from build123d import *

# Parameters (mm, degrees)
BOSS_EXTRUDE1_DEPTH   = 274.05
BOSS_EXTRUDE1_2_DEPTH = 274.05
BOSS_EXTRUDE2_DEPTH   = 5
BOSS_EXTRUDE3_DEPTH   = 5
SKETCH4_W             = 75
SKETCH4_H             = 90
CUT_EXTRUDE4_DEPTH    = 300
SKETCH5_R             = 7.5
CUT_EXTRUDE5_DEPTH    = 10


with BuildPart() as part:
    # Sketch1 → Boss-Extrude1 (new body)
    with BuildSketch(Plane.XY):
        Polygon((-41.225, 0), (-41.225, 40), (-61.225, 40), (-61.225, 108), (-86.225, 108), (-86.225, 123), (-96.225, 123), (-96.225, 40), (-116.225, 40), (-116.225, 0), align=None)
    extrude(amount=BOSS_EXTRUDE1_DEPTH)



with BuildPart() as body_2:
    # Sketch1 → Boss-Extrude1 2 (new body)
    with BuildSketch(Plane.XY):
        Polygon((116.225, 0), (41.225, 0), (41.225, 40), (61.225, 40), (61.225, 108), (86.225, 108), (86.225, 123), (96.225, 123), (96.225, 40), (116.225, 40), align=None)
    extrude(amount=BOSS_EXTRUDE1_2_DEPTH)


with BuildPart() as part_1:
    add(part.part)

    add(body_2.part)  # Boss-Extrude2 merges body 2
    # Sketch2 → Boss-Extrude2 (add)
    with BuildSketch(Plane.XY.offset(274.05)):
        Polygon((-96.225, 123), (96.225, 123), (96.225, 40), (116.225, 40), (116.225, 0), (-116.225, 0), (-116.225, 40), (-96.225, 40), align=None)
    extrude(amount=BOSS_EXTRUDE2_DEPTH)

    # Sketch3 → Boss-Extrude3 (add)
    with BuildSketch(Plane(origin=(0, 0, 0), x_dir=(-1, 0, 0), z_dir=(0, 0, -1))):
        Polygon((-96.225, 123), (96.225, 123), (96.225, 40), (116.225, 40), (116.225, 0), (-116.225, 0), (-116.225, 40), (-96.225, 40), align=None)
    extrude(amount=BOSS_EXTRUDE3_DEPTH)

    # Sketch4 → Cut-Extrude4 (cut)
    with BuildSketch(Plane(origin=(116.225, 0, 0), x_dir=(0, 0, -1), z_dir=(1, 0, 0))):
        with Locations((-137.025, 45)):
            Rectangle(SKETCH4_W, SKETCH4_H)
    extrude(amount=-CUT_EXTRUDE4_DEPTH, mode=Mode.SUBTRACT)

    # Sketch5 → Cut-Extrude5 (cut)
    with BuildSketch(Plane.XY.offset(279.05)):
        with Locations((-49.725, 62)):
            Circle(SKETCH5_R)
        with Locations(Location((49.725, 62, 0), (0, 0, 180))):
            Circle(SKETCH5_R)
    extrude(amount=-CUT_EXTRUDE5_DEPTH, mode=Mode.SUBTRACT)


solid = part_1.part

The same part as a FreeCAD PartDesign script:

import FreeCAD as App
import Part
import Sketcher

V = App.Vector

doc = App.newDocument("Part")
body = doc.addObject("PartDesign::Body", "Body")

# Sketch on XY plane
sketch1 = doc.addObject("Sketcher::SketchObject", "Sketch")
body.addObject(sketch1)
sketch1.AttachmentSupport = (doc.XY_Plane, [""])
sketch1.MapMode = "FlatFace"
sketch1.addGeometry(Part.LineSegment(V(-41, 0, 0), V(-41, 40, 0)), False)
sketch1.addGeometry(Part.LineSegment(V(-41, 40, 0), V(-61, 40, 0)), False)
sketch1.addGeometry(Part.LineSegment(V(-61, 40, 0), V(-61, 108, 0)), False)
sketch1.addGeometry(Part.LineSegment(V(-61, 108, 0), V(-86, 108, 0)), False)
sketch1.addGeometry(Part.LineSegment(V(-86, 108, 0), V(-86, 123, 0)), False)
sketch1.addGeometry(Part.LineSegment(V(-86, 123, 0), V(-96, 123, 0)), False)
sketch1.addGeometry(Part.LineSegment(V(-96, 123, 0), V(-96, 40, 0)), False)
sketch1.addGeometry(Part.LineSegment(V(-96, 40, 0), V(-116, 40, 0)), False)
sketch1.addGeometry(Part.LineSegment(V(-116, 40, 0), V(-116, 0, 0)), False)
sketch1.addGeometry(Part.LineSegment(V(-116, 0, 0), V(-41, 0, 0)), False)
sketch1.addConstraint(Sketcher.Constraint("Coincident", 0, 2, 1, 1))
sketch1.addConstraint(Sketcher.Constraint("Coincident", 1, 2, 2, 1))
sketch1.addConstraint(Sketcher.Constraint("Coincident", 2, 2, 3, 1))
sketch1.addConstraint(Sketcher.Constraint("Coincident", 3, 2, 4, 1))
sketch1.addConstraint(Sketcher.Constraint("Coincident", 4, 2, 5, 1))
sketch1.addConstraint(Sketcher.Constraint("Coincident", 5, 2, 6, 1))
sketch1.addConstraint(Sketcher.Constraint("Coincident", 6, 2, 7, 1))
sketch1.addConstraint(Sketcher.Constraint("Coincident", 7, 2, 8, 1))
sketch1.addConstraint(Sketcher.Constraint("Coincident", 8, 2, 9, 1))
sketch1.addConstraint(Sketcher.Constraint("Coincident", 9, 2, 0, 1))
sketch1.addConstraint(Sketcher.Constraint("Vertical", 0))
sketch1.addConstraint(Sketcher.Constraint("Horizontal", 1))
sketch1.addConstraint(Sketcher.Constraint("Vertical", 2))
sketch1.addConstraint(Sketcher.Constraint("Horizontal", 3))
sketch1.addConstraint(Sketcher.Constraint("Vertical", 4))
sketch1.addConstraint(Sketcher.Constraint("Horizontal", 5))
sketch1.addConstraint(Sketcher.Constraint("Vertical", 6))
sketch1.addConstraint(Sketcher.Constraint("Horizontal", 7))
sketch1.addConstraint(Sketcher.Constraint("Vertical", 8))
sketch1.addConstraint(Sketcher.Constraint("Horizontal", 9))
sketch1.addConstraint(Sketcher.Constraint("PointOnObject", 8, 2, -1))
sketch1.addConstraint(Sketcher.Constraint("Horizontal", 1, 2, 6, 2))
sketch1.addConstraint(Sketcher.Constraint("Equal", 1, 7))
sketch1.addConstraint(Sketcher.Constraint("DistanceX", 1, 2, 1, 1, 20.0))
sketch1.addConstraint(Sketcher.Constraint("DistanceX", 3, 2, 3, 1, 25.0))
sketch1.addConstraint(Sketcher.Constraint("DistanceX", 5, 2, 5, 1, 10.0))
sketch1.addConstraint(Sketcher.Constraint("DistanceY", 0, 1, 0, 2, 40.0))
sketch1.addConstraint(Sketcher.Constraint("DistanceY", 2, 1, 2, 2, 68.0))
sketch1.addConstraint(Sketcher.Constraint("DistanceY", 4, 1, 4, 2, 15.0))
sketch1.addConstraint(Sketcher.Constraint("DistanceX", 0, 2, -1, 1, 41.225))
pad1 = doc.addObject("PartDesign::Pad", "Pad")
body.addObject(pad1)
pad1.Profile = sketch1
pad1.Length = 274.05
body2 = doc.addObject("PartDesign::Body", "Body001")

# Sketch on XY plane
sketch2 = doc.addObject("Sketcher::SketchObject", "Sketch001")
body2.addObject(sketch2)
sketch2.AttachmentSupport = (doc.getObject("XY_Plane001"), [""])
sketch2.MapMode = "FlatFace"
sketch2.addGeometry(Part.LineSegment(V(41, 0, 0), V(116, 0, 0)), False)
sketch2.addGeometry(Part.LineSegment(V(116, 0, 0), V(116, 40, 0)), False)
sketch2.addGeometry(Part.LineSegment(V(116, 40, 0), V(96, 40, 0)), False)
sketch2.addGeometry(Part.LineSegment(V(96, 40, 0), V(96, 123, 0)), False)
sketch2.addGeometry(Part.LineSegment(V(96, 123, 0), V(86, 123, 0)), False)
sketch2.addGeometry(Part.LineSegment(V(86, 123, 0), V(86, 108, 0)), False)
sketch2.addGeometry(Part.LineSegment(V(86, 108, 0), V(61, 108, 0)), False)
sketch2.addGeometry(Part.LineSegment(V(61, 108, 0), V(61, 40, 0)), False)
sketch2.addGeometry(Part.LineSegment(V(61, 40, 0), V(41, 40, 0)), False)
sketch2.addGeometry(Part.LineSegment(V(41, 40, 0), V(41, 0, 0)), False)
sketch2.addConstraint(Sketcher.Constraint("Coincident", 0, 2, 1, 1))
sketch2.addConstraint(Sketcher.Constraint("Coincident", 1, 2, 2, 1))
sketch2.addConstraint(Sketcher.Constraint("Coincident", 2, 2, 3, 1))
sketch2.addConstraint(Sketcher.Constraint("Coincident", 3, 2, 4, 1))
sketch2.addConstraint(Sketcher.Constraint("Coincident", 4, 2, 5, 1))
sketch2.addConstraint(Sketcher.Constraint("Coincident", 5, 2, 6, 1))
sketch2.addConstraint(Sketcher.Constraint("Coincident", 6, 2, 7, 1))
sketch2.addConstraint(Sketcher.Constraint("Coincident", 7, 2, 8, 1))
sketch2.addConstraint(Sketcher.Constraint("Coincident", 8, 2, 9, 1))
sketch2.addConstraint(Sketcher.Constraint("Coincident", 9, 2, 0, 1))
sketch2.addConstraint(Sketcher.Constraint("Horizontal", 0))
sketch2.addConstraint(Sketcher.Constraint("Vertical", 1))
sketch2.addConstraint(Sketcher.Constraint("Horizontal", 2))
sketch2.addConstraint(Sketcher.Constraint("Vertical", 3))
sketch2.addConstraint(Sketcher.Constraint("Horizontal", 4))
sketch2.addConstraint(Sketcher.Constraint("Vertical", 5))
sketch2.addConstraint(Sketcher.Constraint("Horizontal", 6))
sketch2.addConstraint(Sketcher.Constraint("Vertical", 7))
sketch2.addConstraint(Sketcher.Constraint("Horizontal", 8))
sketch2.addConstraint(Sketcher.Constraint("Vertical", 9))
sketch2.addConstraint(Sketcher.Constraint("PointOnObject", 0, 2, -1))
sketch2.addConstraint(Sketcher.Constraint("Horizontal", 2, 2, 7, 2))
sketch2.addConstraint(Sketcher.Constraint("Equal", 2, 8))
sketch2.addConstraint(Sketcher.Constraint("DistanceX", 0, 1, 0, 2, 75.0))
sketch2.addConstraint(Sketcher.Constraint("DistanceX", 2, 2, 2, 1, 20.0))
sketch2.addConstraint(Sketcher.Constraint("DistanceX", 4, 2, 4, 1, 10.0))
sketch2.addConstraint(Sketcher.Constraint("DistanceY", 1, 1, 1, 2, 40.0))
sketch2.addConstraint(Sketcher.Constraint("DistanceY", 3, 1, 3, 2, 83.0))
sketch2.addConstraint(Sketcher.Constraint("DistanceY", 5, 2, 5, 1, 15.0))
sketch2.addConstraint(Sketcher.Constraint("DistanceX", -1, 1, 0, 2, 116.225))
pad2 = doc.addObject("PartDesign::Pad", "Pad001")
body2.addObject(pad2)
pad2.Profile = sketch2
pad2.Length = 274.05
body.AllowCompound = True
doc.recompute()

boolean = doc.addObject("PartDesign::Boolean", "Boolean")
body.addObject(boolean)
boolean.Type = "Fuse"
boolean.addObjects([body2])

# Sketch on XY plane
sketch3 = doc.addObject("Sketcher::SketchObject", "Sketch002")
body.addObject(sketch3)
sketch3.AttachmentSupport = (doc.XY_Plane, [""])
sketch3.MapMode = "FlatFace"
sketch3.AttachmentOffset = App.Placement(V(0, 0, 274.05), App.Rotation())
sketch3.addGeometry(Part.LineSegment(V(96, 123, 0), V(-96, 123, 0)), False)
sketch3.addGeometry(Part.LineSegment(V(-96, 123, 0), V(-96, 40, 0)), False)
sketch3.addGeometry(Part.LineSegment(V(-96, 40, 0), V(-116, 40, 0)), False)
sketch3.addGeometry(Part.LineSegment(V(-116, 40, 0), V(-116, 0, 0)), False)
sketch3.addGeometry(Part.LineSegment(V(-116, 0, 0), V(116, 0, 0)), False)
sketch3.addGeometry(Part.LineSegment(V(116, 0, 0), V(116, 40, 0)), False)
sketch3.addGeometry(Part.LineSegment(V(116, 40, 0), V(96, 40, 0)), False)
sketch3.addGeometry(Part.LineSegment(V(96, 40, 0), V(96, 123, 0)), False)
sketch3.addConstraint(Sketcher.Constraint("Coincident", 0, 2, 1, 1))
sketch3.addConstraint(Sketcher.Constraint("Coincident", 1, 2, 2, 1))
sketch3.addConstraint(Sketcher.Constraint("Coincident", 2, 2, 3, 1))
sketch3.addConstraint(Sketcher.Constraint("Coincident", 3, 2, 4, 1))
sketch3.addConstraint(Sketcher.Constraint("Coincident", 4, 2, 5, 1))
sketch3.addConstraint(Sketcher.Constraint("Coincident", 5, 2, 6, 1))
sketch3.addConstraint(Sketcher.Constraint("Coincident", 6, 2, 7, 1))
sketch3.addConstraint(Sketcher.Constraint("Coincident", 7, 2, 0, 1))
sketch3.addConstraint(Sketcher.Constraint("Horizontal", 0))
sketch3.addConstraint(Sketcher.Constraint("Vertical", 1))
sketch3.addConstraint(Sketcher.Constraint("Horizontal", 2))
sketch3.addConstraint(Sketcher.Constraint("Vertical", 3))
sketch3.addConstraint(Sketcher.Constraint("Horizontal", 4))
sketch3.addConstraint(Sketcher.Constraint("Vertical", 5))
sketch3.addConstraint(Sketcher.Constraint("Horizontal", 6))
sketch3.addConstraint(Sketcher.Constraint("Vertical", 7))
sketch3.addConstraint(Sketcher.Constraint("Symmetric", 3, 2, 4, 2, -1, 1))
sketch3.addConstraint(Sketcher.Constraint("Symmetric", 1, 2, 6, 2, -2))
sketch3.addConstraint(Sketcher.Constraint("DistanceX", 2, 2, 2, 1, 20.0))
sketch3.addConstraint(Sketcher.Constraint("DistanceY", 1, 2, 1, 1, 83.0))
sketch3.addConstraint(Sketcher.Constraint("DistanceY", 3, 2, 3, 1, 40.0))
sketch3.addConstraint(Sketcher.Constraint("DistanceX", 0, 2, 0, 1, 192.45))
pad3 = doc.addObject("PartDesign::Pad", "Pad002")
body.addObject(pad3)
pad3.Profile = sketch3
pad3.Length = 5

# Sketch on XY plane
sketch4 = doc.addObject("Sketcher::SketchObject", "Sketch003")
body.addObject(sketch4)
sketch4.AttachmentSupport = (doc.XY_Plane, [""])
sketch4.MapMode = "FlatFace"
sketch4.addGeometry(Part.LineSegment(V(-96, 123, 0), V(96, 123, 0)), False)
sketch4.addGeometry(Part.LineSegment(V(96, 123, 0), V(96, 40, 0)), False)
sketch4.addGeometry(Part.LineSegment(V(96, 40, 0), V(116, 40, 0)), False)
sketch4.addGeometry(Part.LineSegment(V(116, 40, 0), V(116, 0, 0)), False)
sketch4.addGeometry(Part.LineSegment(V(116, 0, 0), V(-116, 0, 0)), False)
sketch4.addGeometry(Part.LineSegment(V(-116, 0, 0), V(-116, 40, 0)), False)
sketch4.addGeometry(Part.LineSegment(V(-116, 40, 0), V(-96, 40, 0)), False)
sketch4.addGeometry(Part.LineSegment(V(-96, 40, 0), V(-96, 123, 0)), False)
sketch4.addConstraint(Sketcher.Constraint("Coincident", 0, 2, 1, 1))
sketch4.addConstraint(Sketcher.Constraint("Coincident", 1, 2, 2, 1))
sketch4.addConstraint(Sketcher.Constraint("Coincident", 2, 2, 3, 1))
sketch4.addConstraint(Sketcher.Constraint("Coincident", 3, 2, 4, 1))
sketch4.addConstraint(Sketcher.Constraint("Coincident", 4, 2, 5, 1))
sketch4.addConstraint(Sketcher.Constraint("Coincident", 5, 2, 6, 1))
sketch4.addConstraint(Sketcher.Constraint("Coincident", 6, 2, 7, 1))
sketch4.addConstraint(Sketcher.Constraint("Coincident", 7, 2, 0, 1))
sketch4.addConstraint(Sketcher.Constraint("Horizontal", 0))
sketch4.addConstraint(Sketcher.Constraint("Vertical", 1))
sketch4.addConstraint(Sketcher.Constraint("Horizontal", 2))
sketch4.addConstraint(Sketcher.Constraint("Vertical", 3))
sketch4.addConstraint(Sketcher.Constraint("Horizontal", 4))
sketch4.addConstraint(Sketcher.Constraint("Vertical", 5))
sketch4.addConstraint(Sketcher.Constraint("Horizontal", 6))
sketch4.addConstraint(Sketcher.Constraint("Vertical", 7))
sketch4.addConstraint(Sketcher.Constraint("Symmetric", 3, 2, 4, 2, -1, 1))
sketch4.addConstraint(Sketcher.Constraint("Symmetric", 1, 2, 6, 2, -2))
sketch4.addConstraint(Sketcher.Constraint("DistanceX", 2, 1, 2, 2, 20.0))
sketch4.addConstraint(Sketcher.Constraint("DistanceY", 1, 2, 1, 1, 83.0))
sketch4.addConstraint(Sketcher.Constraint("DistanceY", 3, 2, 3, 1, 40.0))
sketch4.addConstraint(Sketcher.Constraint("DistanceX", 0, 1, 0, 2, 192.45))
pad4 = doc.addObject("PartDesign::Pad", "Pad003")
body.addObject(pad4)
pad4.Profile = sketch4
pad4.Length = 5
pad4.Reversed = True

# Sketch on YZ plane
sketch5 = doc.addObject("Sketcher::SketchObject", "Sketch004")
body.addObject(sketch5)
sketch5.AttachmentSupport = (doc.YZ_Plane, [""])
sketch5.MapMode = "FlatFace"
sketch5.AttachmentOffset = App.Placement(V(0, 0, 116.225), App.Rotation())
sketch5.addGeometry(Part.LineSegment(V(90, 175, 0), V(0, 175, 0)), False)
sketch5.addGeometry(Part.LineSegment(V(0, 175, 0), V(0, 100, 0)), False)
sketch5.addGeometry(Part.LineSegment(V(0, 100, 0), V(90, 100, 0)), False)
sketch5.addGeometry(Part.LineSegment(V(90, 100, 0), V(90, 175, 0)), False)
sketch5.addConstraint(Sketcher.Constraint("Coincident", 0, 2, 1, 1))
sketch5.addConstraint(Sketcher.Constraint("Coincident", 1, 2, 2, 1))
sketch5.addConstraint(Sketcher.Constraint("Coincident", 2, 2, 3, 1))
sketch5.addConstraint(Sketcher.Constraint("Coincident", 3, 2, 0, 1))
sketch5.addConstraint(Sketcher.Constraint("Horizontal", 0))
sketch5.addConstraint(Sketcher.Constraint("Vertical", 1))
sketch5.addConstraint(Sketcher.Constraint("Horizontal", 2))
sketch5.addConstraint(Sketcher.Constraint("Vertical", 3))
sketch5.addConstraint(Sketcher.Constraint("PointOnObject", 0, 2, -2))
sketch5.addConstraint(Sketcher.Constraint("DistanceX", 0, 2, 0, 1, 90.0))
sketch5.addConstraint(Sketcher.Constraint("DistanceY", 1, 2, 1, 1, 75.0))
sketch5.addConstraint(Sketcher.Constraint("DistanceY", -1, 1, 0, 2, 174.525))
pocket1 = doc.addObject("PartDesign::Pocket", "Pocket")
body.addObject(pocket1)
pocket1.Profile = sketch5
pocket1.Length = 300

# Sketch on XY plane
sketch6 = doc.addObject("Sketcher::SketchObject", "Sketch005")
body.addObject(sketch6)
sketch6.AttachmentSupport = (doc.XY_Plane, [""])
sketch6.MapMode = "FlatFace"
sketch6.AttachmentOffset = App.Placement(V(0, 0, 279.05), App.Rotation())
sketch6.addGeometry(Part.Circle(V(-50, 62, 0), V(0, 0, 1), 8), False)
sketch6.addGeometry(Part.Circle(V(50, 62, 0), V(0, 0, 1), 8), False)
sketch6.addConstraint(Sketcher.Constraint("Equal", 0, 1))
sketch6.addConstraint(Sketcher.Constraint("Symmetric", 0, 3, 1, 3, -2))
sketch6.addConstraint(Sketcher.Constraint("Diameter", 0, 15.0))
sketch6.addConstraint(Sketcher.Constraint("DistanceY", -1, 1, 0, 3, 62.0))
sketch6.addConstraint(Sketcher.Constraint("DistanceX", 0, 3, 1, 3, 99.45))
pocket2 = doc.addObject("PartDesign::Pocket", "Pocket001")
body.addObject(pocket2)
pocket2.Profile = sketch6
pocket2.Length = 10

doc.recompute()
